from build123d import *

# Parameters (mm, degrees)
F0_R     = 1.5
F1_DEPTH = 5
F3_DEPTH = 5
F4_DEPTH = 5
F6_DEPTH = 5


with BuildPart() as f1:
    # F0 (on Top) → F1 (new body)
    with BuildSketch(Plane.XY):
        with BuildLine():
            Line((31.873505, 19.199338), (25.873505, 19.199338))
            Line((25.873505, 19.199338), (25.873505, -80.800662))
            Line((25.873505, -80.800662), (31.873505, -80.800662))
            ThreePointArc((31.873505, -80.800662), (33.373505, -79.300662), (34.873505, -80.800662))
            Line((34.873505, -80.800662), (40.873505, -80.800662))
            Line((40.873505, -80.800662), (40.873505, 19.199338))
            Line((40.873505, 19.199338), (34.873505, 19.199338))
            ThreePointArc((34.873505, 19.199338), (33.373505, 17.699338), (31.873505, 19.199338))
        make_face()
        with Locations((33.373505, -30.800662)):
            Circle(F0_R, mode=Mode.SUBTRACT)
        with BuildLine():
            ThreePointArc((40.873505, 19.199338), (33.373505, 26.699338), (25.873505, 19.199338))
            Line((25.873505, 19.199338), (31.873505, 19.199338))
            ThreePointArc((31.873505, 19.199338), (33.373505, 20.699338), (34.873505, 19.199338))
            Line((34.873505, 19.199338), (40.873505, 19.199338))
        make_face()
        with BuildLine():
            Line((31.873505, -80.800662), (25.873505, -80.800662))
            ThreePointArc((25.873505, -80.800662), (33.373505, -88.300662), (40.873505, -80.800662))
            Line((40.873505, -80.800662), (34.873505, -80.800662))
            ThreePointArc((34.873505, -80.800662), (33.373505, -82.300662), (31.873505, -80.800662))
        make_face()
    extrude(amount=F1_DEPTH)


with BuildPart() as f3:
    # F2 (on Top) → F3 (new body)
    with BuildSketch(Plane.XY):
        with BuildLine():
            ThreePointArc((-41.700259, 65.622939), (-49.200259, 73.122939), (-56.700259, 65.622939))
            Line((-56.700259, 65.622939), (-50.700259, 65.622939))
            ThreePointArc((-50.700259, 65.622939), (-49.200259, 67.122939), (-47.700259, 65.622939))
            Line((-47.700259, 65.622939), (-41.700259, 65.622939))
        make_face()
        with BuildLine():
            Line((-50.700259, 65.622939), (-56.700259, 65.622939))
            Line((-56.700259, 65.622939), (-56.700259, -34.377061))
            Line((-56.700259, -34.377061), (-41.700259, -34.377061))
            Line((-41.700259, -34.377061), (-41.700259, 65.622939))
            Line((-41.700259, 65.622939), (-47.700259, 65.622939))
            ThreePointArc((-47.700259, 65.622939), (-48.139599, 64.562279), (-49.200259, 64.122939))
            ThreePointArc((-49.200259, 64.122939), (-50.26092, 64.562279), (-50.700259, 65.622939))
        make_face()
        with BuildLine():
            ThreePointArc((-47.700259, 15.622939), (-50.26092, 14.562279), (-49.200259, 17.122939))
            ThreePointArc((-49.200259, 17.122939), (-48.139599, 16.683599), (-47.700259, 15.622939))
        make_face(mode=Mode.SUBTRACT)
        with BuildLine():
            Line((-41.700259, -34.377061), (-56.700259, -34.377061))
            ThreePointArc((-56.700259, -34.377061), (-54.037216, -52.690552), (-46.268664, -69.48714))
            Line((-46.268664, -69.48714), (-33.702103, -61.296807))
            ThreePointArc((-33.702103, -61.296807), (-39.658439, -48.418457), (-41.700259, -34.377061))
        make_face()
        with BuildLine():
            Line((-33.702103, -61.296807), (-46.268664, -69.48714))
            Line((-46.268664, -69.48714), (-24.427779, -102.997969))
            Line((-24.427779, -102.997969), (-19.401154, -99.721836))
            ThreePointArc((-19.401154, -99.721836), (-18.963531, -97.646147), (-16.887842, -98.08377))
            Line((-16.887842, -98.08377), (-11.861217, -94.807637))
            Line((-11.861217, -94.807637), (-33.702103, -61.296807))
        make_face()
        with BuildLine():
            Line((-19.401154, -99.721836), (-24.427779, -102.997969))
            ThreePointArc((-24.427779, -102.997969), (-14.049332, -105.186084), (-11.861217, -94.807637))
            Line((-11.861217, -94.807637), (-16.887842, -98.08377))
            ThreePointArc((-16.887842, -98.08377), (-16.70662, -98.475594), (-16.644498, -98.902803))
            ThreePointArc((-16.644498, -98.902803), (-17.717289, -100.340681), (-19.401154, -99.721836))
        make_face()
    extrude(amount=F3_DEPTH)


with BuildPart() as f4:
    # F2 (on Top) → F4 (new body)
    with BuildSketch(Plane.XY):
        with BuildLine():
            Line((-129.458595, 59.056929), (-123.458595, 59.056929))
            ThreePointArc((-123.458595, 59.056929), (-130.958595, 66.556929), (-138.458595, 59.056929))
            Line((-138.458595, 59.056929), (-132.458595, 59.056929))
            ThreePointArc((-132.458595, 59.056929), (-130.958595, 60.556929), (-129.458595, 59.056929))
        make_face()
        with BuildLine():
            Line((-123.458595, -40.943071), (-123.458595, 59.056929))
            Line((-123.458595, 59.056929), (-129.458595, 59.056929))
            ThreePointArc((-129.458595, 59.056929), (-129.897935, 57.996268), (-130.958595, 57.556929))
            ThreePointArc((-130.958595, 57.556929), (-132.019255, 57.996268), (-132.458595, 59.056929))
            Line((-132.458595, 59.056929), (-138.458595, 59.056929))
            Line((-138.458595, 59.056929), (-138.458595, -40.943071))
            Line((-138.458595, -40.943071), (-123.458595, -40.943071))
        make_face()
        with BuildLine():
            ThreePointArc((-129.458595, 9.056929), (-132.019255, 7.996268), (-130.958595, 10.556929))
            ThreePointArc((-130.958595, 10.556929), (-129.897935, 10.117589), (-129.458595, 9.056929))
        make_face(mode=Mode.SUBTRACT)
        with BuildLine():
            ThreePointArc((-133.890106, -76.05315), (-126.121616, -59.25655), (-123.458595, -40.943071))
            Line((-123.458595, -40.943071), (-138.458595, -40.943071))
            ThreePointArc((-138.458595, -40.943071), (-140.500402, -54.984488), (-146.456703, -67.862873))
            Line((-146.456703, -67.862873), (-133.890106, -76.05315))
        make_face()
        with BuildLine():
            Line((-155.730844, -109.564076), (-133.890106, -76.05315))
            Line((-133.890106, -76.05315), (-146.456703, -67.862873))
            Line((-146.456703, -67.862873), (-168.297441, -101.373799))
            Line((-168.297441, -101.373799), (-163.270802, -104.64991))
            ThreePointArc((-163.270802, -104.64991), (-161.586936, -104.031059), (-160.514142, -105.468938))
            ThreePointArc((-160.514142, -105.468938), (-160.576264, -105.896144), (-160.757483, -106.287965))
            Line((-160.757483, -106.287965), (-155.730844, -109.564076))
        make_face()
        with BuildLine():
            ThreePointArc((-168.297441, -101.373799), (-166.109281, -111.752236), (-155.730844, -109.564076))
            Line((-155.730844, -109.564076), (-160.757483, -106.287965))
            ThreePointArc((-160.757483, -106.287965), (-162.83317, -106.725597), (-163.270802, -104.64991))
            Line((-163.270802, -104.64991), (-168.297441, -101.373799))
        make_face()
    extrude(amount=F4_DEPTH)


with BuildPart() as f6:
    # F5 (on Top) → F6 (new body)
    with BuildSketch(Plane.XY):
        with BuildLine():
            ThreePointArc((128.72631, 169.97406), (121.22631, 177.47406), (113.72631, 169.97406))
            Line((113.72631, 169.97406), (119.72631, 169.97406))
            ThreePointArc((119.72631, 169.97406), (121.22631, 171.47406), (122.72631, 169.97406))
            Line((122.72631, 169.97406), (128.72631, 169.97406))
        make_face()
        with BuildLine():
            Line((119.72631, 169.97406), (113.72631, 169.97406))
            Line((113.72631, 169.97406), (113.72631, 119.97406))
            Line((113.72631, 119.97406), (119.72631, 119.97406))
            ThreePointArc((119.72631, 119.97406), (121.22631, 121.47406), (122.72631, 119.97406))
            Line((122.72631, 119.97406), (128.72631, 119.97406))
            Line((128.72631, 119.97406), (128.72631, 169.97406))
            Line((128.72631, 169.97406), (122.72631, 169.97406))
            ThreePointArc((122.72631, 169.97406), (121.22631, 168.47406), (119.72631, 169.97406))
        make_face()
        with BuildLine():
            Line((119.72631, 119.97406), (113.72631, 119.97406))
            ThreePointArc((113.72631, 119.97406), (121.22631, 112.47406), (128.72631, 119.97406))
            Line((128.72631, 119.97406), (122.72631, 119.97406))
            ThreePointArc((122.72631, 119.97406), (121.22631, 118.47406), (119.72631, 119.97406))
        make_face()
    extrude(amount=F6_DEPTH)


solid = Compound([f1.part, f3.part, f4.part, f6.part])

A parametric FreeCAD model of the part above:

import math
import FreeCAD as App
import Part
import Sketcher
from FreeCAD import Vector

doc = App.newDocument("Part")
body = doc.addObject("PartDesign::Body", "Body")

# Sketch on XY plane
sketch1 = body.newObject("Sketcher::SketchObject", "Sketch")
sketch1.AttachmentSupport = (doc.getObject("XY_Plane"), [""])
sketch1.MapMode = "FlatFace"
sketch1.addGeometry([
    Part.LineSegment(Vector(25.873505, 19.199338, 0), Vector(25.873505, -80.800662, 0)),  # 0
    Part.ArcOfCircle(Part.Circle(Vector(33.373505, -80.800662, 0), Vector(0, 0, 1), 7.5), math.radians(180), math.radians(360)),  # 1
    Part.LineSegment(Vector(40.873505, -80.800662, 0), Vector(40.873505, 19.199338, 0)),  # 2
    Part.ArcOfCircle(Part.Circle(Vector(33.373505, 19.199338, 0), Vector(0, 0, 1), 7.5), math.radians(0), math.radians(180)),  # 3
    Part.Circle(Vector(33.373505, 19.199338, 0), Vector(0, 0, 1), 1.5),  # 4
    Part.Circle(Vector(33.373505, -80.800662, 0), Vector(0, 0, 1), 1.5),  # 5
    Part.Circle(Vector(33.373505, -30.800662, 0), Vector(0, 0, 1), 1.5),  # 6
], False)
sketch1.addConstraint([
    Sketcher.Constraint("Tangent", 0, 2, 1, 1),
    Sketcher.Constraint("Tangent", 1, 2, 2, 1),
    Sketcher.Constraint("Tangent", 2, 2, 3, 1),
    Sketcher.Constraint("Tangent", 3, 2, 0, 1),
    Sketcher.Constraint("Vertical", 0),
    Sketcher.Constraint("Vertical", 2),
    Sketcher.Constraint("Coincident", 4, 3, 3, 3),
    Sketcher.Constraint("Coincident", 5, 3, 1, 3),
    Sketcher.Constraint("Equal", 4, 5),
    Sketcher.Constraint("Equal", 5, 6),
    Sketcher.Constraint("Vertical", 5, 3, 6, 3),
    Sketcher.Constraint("Diameter", 4, 3.0),
    Sketcher.Constraint("Radius", 1, 7.5),
    Sketcher.Constraint("DistanceY", 0, 2, 0, 1, 100.0),
    Sketcher.Constraint("DistanceY", 1, 3, 6, 3, 50.0),
    Sketcher.Constraint("DistanceY", -1, 1, 3, 3, 19.199338),
    Sketcher.Constraint("DistanceX", -1, 1, 1, 3, 33.373505),
])
pad1 = body.newObject("PartDesign::Pad", "Pad")
pad1.Profile = sketch1
pad1.Length = 5
body2 = doc.addObject("PartDesign::Body", "Body001")

# Sketch on XY plane
sketch2 = body2.newObject("Sketcher::SketchObject", "Sketch001")
sketch2.AttachmentSupport = (doc.getObject("XY_Plane001"), [""])
sketch2.MapMode = "FlatFace"
sketch2.addGeometry([
    Part.ArcOfCircle(Part.Circle(Vector(-49.200259, 65.622939, 0), Vector(0, 0, 1), 7.5), math.radians(0), math.radians(180)),  # 0
    Part.LineSegment(Vector(-56.700259, 65.622939, 0), Vector(-56.700259, -34.377061, 0)),  # 1
    Part.ArcOfCircle(Part.Circle(Vector(7.601296, -34.377065, 0), Vector(0, 0, 1), 64.301555), math.radians(179.999997), math.radians(213.094544)),  # 2
    Part.LineSegment(Vector(-46.268664, -69.48714, 0), Vector(-24.427779, -102.997969, 0)),  # 3
    Part.ArcOfCircle(Part.Circle(Vector(-18.144498, -98.902803, 0), Vector(0, 0, 1), 7.5), math.radians(-146.905461), math.radians(33.094539)),  # 4
    Part.LineSegment(Vector(-11.861217, -94.807637, 0), Vector(-33.702103, -61.296807, 0)),  # 5
    Part.ArcOfCircle(Part.Circle(Vector(7.60131, -34.37706, 0), Vector(0, 0, 1), 49.301569), math.radians(-179.999999), math.radians(-146.905461)),  # 6
    Part.LineSegment(Vector(-41.700259, -34.377061, 0), Vector(-41.700259, 65.622939, 0)),  # 7
    Part.ArcOfCircle(Part.Circle(Vector(-18.144498, -98.902803, 0), Vector(0, 0, 1), 1.5), math.radians(33.094537), math.radians(213.094537)),  # 8
    Part.ArcOfCircle(Part.Circle(Vector(-18.14449, -98.902801, 0), Vector(0, 0, 1), 1.499992), math.radians(-0.000073), math.radians(33.094637)),  # 9
    Part.ArcOfCircle(Part.Circle(Vector(-18.144498, -98.902803, 0), Vector(0, 0, 1), 1.5), math.radians(-146.905482), math.radians(0.000016)),  # 10
    Part.ArcOfCircle(Part.Circle(Vector(-49.20026, 15.622938, 0), Vector(0, 0, 1), 1.500001), math.radians(0.000022), math.radians(89.999978)),  # 11
    Part.ArcOfCircle(Part.Circle(Vector(-49.200259, 15.622939, 0), Vector(0, 0, 1), 1.5), math.radians(89.999993), math.radians(360.000007)),  # 12
    Part.ArcOfCircle(Part.Circle(Vector(-49.200259, 65.622939, 0), Vector(0, 0, 1), 1.5), math.radians(0), math.radians(180)),  # 13
    Part.ArcOfCircle(Part.Circle(Vector(-49.20026, 65.62294, 0), Vector(0, 0, 1), 1.500001), math.radians(-89.999978), math.radians(-0.000022)),  # 14
    Part.ArcOfCircle(Part.Circle(Vector(-49.20026, 65.622938, 0), Vector(0, 0, 1), 1.499999), math.radians(179.999957), math.radians(270.000043)),  # 15
], False)
sketch2.addConstraint([
    Sketcher.Constraint("Tangent", 0, 2, 1, 1),
    Sketcher.Constraint("Tangent", 1, 2, 2, 1),
    Sketcher.Constraint("Tangent", 2, 2, 3, 1),
    Sketcher.Constraint("Tangent", 3, 2, 4, 1),
    Sketcher.Constraint("Tangent", 4, 2, 5, 1),
    Sketcher.Constraint("Tangent", 5, 2, 6, 2),
    Sketcher.Constraint("Tangent", 6, 1, 7, 1),
    Sketcher.Constraint("Tangent", 7, 2, 0, 1),
    Sketcher.Constraint("Tangent", 8, 1, 9, 2),
    Sketcher.Constraint("Tangent", 9, 1, 10, 2),
    Sketcher.Constraint("Tangent", 10, 1, 8, 2),
    Sketcher.Constraint("Tangent", 11, 1, 12, 2),
    Sketcher.Constraint("Coincident", 12, 1, 11, 2),
    Sketcher.Constraint("Tangent", 13, 1, 14, 2),
    Sketcher.Constraint("Tangent", 14, 1, 15, 2),
    Sketcher.Constraint("Tangent", 15, 1, 13, 2),
    Sketcher.Constraint("Vertical", 1),
    Sketcher.Constraint("Vertical", 7),
    Sketcher.Constraint("Coincident", 8, 3, 4, 3),
    Sketcher.Constraint("Coincident", 13, 3, 0, 3),
    Sketcher.Constraint("Equal", 0, 4),
    Sketcher.Constraint("Equal", 10, 11),
    Sketcher.Constraint("Equal", 12, 13),
    Sketcher.Constraint("Parallel", 3, 5),
    Sketcher.Constraint("Horizontal", 6, 3, 1, 2),
    Sketcher.Constraint("Horizontal", 10, 3, 9, 1),
    Sketcher.Constraint("Horizontal", 12, 3, 11, 1),
    Sketcher.Constraint("Horizontal", 7, 2, 13, 1),
    Sketcher.Constraint("Horizontal", 13, 1, 15, 1),
    Sketcher.Constraint("Vertical", 0, 3, 11, 3),
    Sketcher.Constraint("Vertical", 15, 3, 12, 1),
    Sketcher.Constraint("Vertical", 12, 1, 14, 1),
    Sketcher.Constraint("Radius", 0, 7.5),
    Sketcher.Constraint("Radius", 8, 1.5),
    Sketcher.Constraint("DistanceY", 1, 2, 1, 1, 100.0),
    Sketcher.Constraint("Distance", 3, 39.999999),
    Sketcher.Constraint("DistanceY", 11, 3, 0, 3, 50.000001),
    Sketcher.Constraint("Radius", 6, 49.301569),
    Sketcher.Constraint("DistanceY", 9, 3, -1, 1, 98.902801),
    Sketcher.Constraint("DistanceX", 9, 1, -1, 1, 16.644498),
    Sketcher.Constraint("DistanceX", 9, 3, 6, 3, 25.7458),
    Sketcher.Constraint("DistanceX", 8, 1, -1, 1, 16.887842),
    Sketcher.Constraint("DistanceX", 10, 1, -1, 1, 19.401154),
])
pad2 = body2.newObject("PartDesign::Pad", "Pad001")
pad2.Profile = sketch2
pad2.Length = 5
body3 = doc.addObject("PartDesign::Body", "Body002")

# Sketch on XY plane
sketch3 = body3.newObject("Sketcher::SketchObject", "Sketch002")
sketch3.AttachmentSupport = (doc.getObject("XY_Plane002"), [""])
sketch3.MapMode = "FlatFace"
sketch3.addGeometry([
    Part.ArcOfCircle(Part.Circle(Vector(-130.958595, 59.056929, 0), Vector(0, 0, 1), 7.5), math.radians(0), math.radians(180)),  # 0
    Part.LineSegment(Vector(-138.458595, 59.056929, 0), Vector(-138.458595, -40.943071, 0)),  # 1
    Part.ArcOfCircle(Part.Circle(Vector(-187.760592, -40.943073, 0), Vector(0, 0, 1), 49.301997), math.radians(-33.094289), math.radians(0.000002)),  # 2
    Part.LineSegment(Vector(-146.456703, -67.862873, 0), Vector(-168.297441, -101.373799, 0)),  # 3
    Part.ArcOfCircle(Part.Circle(Vector(-162.014142, -105.468937, 0), Vector(0, 0, 1), 7.5), math.radians(146.90571), math.radians(326.90571)),  # 4
    Part.LineSegment(Vector(-155.730844, -109.564076, 0), Vector(-133.890106, -76.05315, 0)),  # 5
    Part.ArcOfCircle(Part.Circle(Vector(-187.76059, -40.943073, 0), Vector(0, 0, 1), 64.301995), math.radians(-33.09429), math.radians(0.000002)),  # 6
    Part.LineSegment(Vector(-123.458595, -40.943071, 0), Vector(-123.458595, 59.056929, 0)),  # 7
    Part.ArcOfCircle(Part.Circle(Vector(-162.014142, -105.468938, 0), Vector(0, 0, 1), 1.5), math.radians(-0.000009), math.radians(146.905711)),  # 8
    Part.ArcOfCircle(Part.Circle(Vector(-162.014145, -105.468935, 0), Vector(0, 0, 1), 1.500003), math.radians(-33.094308), math.radians(-0.0001)),  # 9
    Part.ArcOfCircle(Part.Circle(Vector(-162.014142, -105.468937, 0), Vector(0, 0, 1), 1.5), math.radians(146.905712), math.radians(326.905712)),  # 10
    Part.ArcOfCircle(Part.Circle(Vector(-130.958596, 9.056928, 0), Vector(0, 0, 1), 1.500001), math.radians(0.000022), math.radians(89.999978)),  # 11
    Part.ArcOfCircle(Part.Circle(Vector(-130.958595, 9.056929, 0), Vector(0, 0, 1), 1.5), math.radians(89.999993), math.radians(360.000007)),  # 12
    Part.ArcOfCircle(Part.Circle(Vector(-130.958595, 59.056929, 0), Vector(0, 0, 1), 1.5), math.radians(0), math.radians(180)),  # 13
    Part.ArcOfCircle(Part.Circle(Vector(-130.958594, 59.056928, 0), Vector(0, 0, 1), 1.499999), math.radians(-90.000043), math.radians(0.000043)),  # 14
    Part.ArcOfCircle(Part.Circle(Vector(-130.958596, 59.056928, 0), Vector(0, 0, 1), 1.499999), math.radians(179.999957), math.radians(270.000043)),  # 15
], False)
sketch3.addConstraint([
    Sketcher.Constraint("Tangent", 0, 2, 1, 1),
    Sketcher.Constraint("Tangent", 1, 2, 2, 2),
    Sketcher.Constraint("Tangent", 2, 1, 3, 1),
    Sketcher.Constraint("Tangent", 3, 2, 4, 1),
    Sketcher.Constraint("Tangent", 4, 2, 5, 1),
    Sketcher.Constraint("Tangent", 5, 2, 6, 1),
    Sketcher.Constraint("Tangent", 6, 2, 7, 1),
    Sketcher.Constraint("Tangent", 7, 2, 0, 1),
    Sketcher.Constraint("Tangent", 8, 1, 9, 2),
    Sketcher.Constraint("Tangent", 9, 1, 10, 2),
    Sketcher.Constraint("Tangent", 10, 1, 8, 2),
    Sketcher.Constraint("Tangent", 11, 1, 12, 2),
    Sketcher.Constraint("Coincident", 12, 1, 11, 2),
    Sketcher.Constraint("Tangent", 13, 1, 14, 2),
    Sketcher.Constraint("Tangent", 14, 1, 15, 2),
    Sketcher.Constraint("Tangent", 15, 1, 13, 2),
    Sketcher.Constraint("Vertical", 1),
    Sketcher.Constraint("Vertical", 7),
    Sketcher.Constraint("Coincident", 6, 3, 2, 3),
    Sketcher.Constraint("Coincident", 8, 3, 4, 3),
    Sketcher.Constraint("Coincident", 13, 3, 0, 3),
    Sketcher.Constraint("Equal", 0, 4),
    Sketcher.Constraint("Equal", 10, 11),
    Sketcher.Constraint("Equal", 12, 13),
    Sketcher.Constraint("Horizontal", 10, 3, 8, 1),
    Sketcher.Constraint("Horizontal", 12, 3, 11, 1),
    Sketcher.Constraint("Horizontal", 7, 2, 13, 1),
    Sketcher.Constraint("Horizontal", 13, 1, 15, 1),
    Sketcher.Constraint("Vertical", 0, 3, 11, 3),
    Sketcher.Constraint("Vertical", 15, 3, 12, 1),
    Sketcher.Constraint("Vertical", 12, 1, 14, 1),
    Sketcher.Constraint("Radius", 0, 7.5),
    Sketcher.Constraint("Radius", 8, 1.5),
    Sketcher.Constraint("DistanceY", 1, 2, 1, 1, 100.0),
    Sketcher.Constraint("Distance", 3, 40.0),
    Sketcher.Constraint("DistanceY", 11, 3, 0, 3, 50.000001),
    Sketcher.Constraint("Radius", 2, 49.301997),
    Sketcher.Constraint("DistanceY", 3, 2, -1, 1, 101.373799),
    Sketcher.Constraint("DistanceX", 3, 2, 4, 3, 6.283299),
    Sketcher.Constraint("DistanceX", 2, 3, -1, 1, 187.760592),
    Sketcher.Constraint("DistanceY", 10, 1, -1, 1, 104.64991),
    Sketcher.Constraint("DistanceX", 9, 1, 8, 1, 0.243341),
])
pad3 = body3.newObject("PartDesign::Pad", "Pad002")
pad3.Profile = sketch3
pad3.Length = 5
body4 = doc.addObject("PartDesign::Body", "Body003")

# Sketch on XY plane
sketch4 = body4.newObject("Sketcher::SketchObject", "Sketch003")
sketch4.AttachmentSupport = (doc.getObject("XY_Plane003"), [""])
sketch4.MapMode = "FlatFace"
sketch4.addGeometry([
    Part.ArcOfCircle(Part.Circle(Vector(121.22631, 169.97406, 0), Vector(0, 0, 1), 7.5), math.radians(0), math.radians(180)),  # 0
    Part.LineSegment(Vector(113.72631, 169.97406, 0), Vector(113.72631, 119.97406, 0)),  # 1
    Part.ArcOfCircle(Part.Circle(Vector(121.22631, 119.97406, 0), Vector(0, 0, 1), 7.5), math.radians(180), math.radians(360)),  # 2
    Part.LineSegment(Vector(128.72631, 119.97406, 0), Vector(128.72631, 169.97406, 0)),  # 3
    Part.Circle(Vector(121.22631, 119.97406, 0), Vector(0, 0, 1), 1.5),  # 4
    Part.Circle(Vector(121.22631, 169.97406, 0), Vector(0, 0, 1), 1.5),  # 5
], False)
sketch4.addConstraint([
    Sketcher.Constraint("Tangent", 0, 2, 1, 1),
    Sketcher.Constraint("Tangent", 1, 2, 2, 1),
    Sketcher.Constraint("Tangent", 2, 2, 3, 1),
    Sketcher.Constraint("Tangent", 3, 2, 0, 1),
    Sketcher.Constraint("Vertical", 1),
    Sketcher.Constraint("Vertical", 3),
    Sketcher.Constraint("Coincident", 4, 3, 2, 3),
    Sketcher.Constraint("Coincident", 5, 3, 0, 3),
    Sketcher.Constraint("Equal", 4, 5),
    Sketcher.Constraint("Diameter", 4, 3.0),
    Sketcher.Constraint("Radius", 0, 7.5),
    Sketcher.Constraint("DistanceY", 1, 2, 1, 1, 50.0),
    Sketcher.Constraint("DistanceX", -1, 1, 0, 3, 121.22631),
    Sketcher.Constraint("DistanceY", -1, 1, 0, 3, 169.97406),
])
pad4 = body4.newObject("PartDesign::Pad", "Pad003")
pad4.Profile = sketch4
pad4.Length = 5

doc.recompute()
